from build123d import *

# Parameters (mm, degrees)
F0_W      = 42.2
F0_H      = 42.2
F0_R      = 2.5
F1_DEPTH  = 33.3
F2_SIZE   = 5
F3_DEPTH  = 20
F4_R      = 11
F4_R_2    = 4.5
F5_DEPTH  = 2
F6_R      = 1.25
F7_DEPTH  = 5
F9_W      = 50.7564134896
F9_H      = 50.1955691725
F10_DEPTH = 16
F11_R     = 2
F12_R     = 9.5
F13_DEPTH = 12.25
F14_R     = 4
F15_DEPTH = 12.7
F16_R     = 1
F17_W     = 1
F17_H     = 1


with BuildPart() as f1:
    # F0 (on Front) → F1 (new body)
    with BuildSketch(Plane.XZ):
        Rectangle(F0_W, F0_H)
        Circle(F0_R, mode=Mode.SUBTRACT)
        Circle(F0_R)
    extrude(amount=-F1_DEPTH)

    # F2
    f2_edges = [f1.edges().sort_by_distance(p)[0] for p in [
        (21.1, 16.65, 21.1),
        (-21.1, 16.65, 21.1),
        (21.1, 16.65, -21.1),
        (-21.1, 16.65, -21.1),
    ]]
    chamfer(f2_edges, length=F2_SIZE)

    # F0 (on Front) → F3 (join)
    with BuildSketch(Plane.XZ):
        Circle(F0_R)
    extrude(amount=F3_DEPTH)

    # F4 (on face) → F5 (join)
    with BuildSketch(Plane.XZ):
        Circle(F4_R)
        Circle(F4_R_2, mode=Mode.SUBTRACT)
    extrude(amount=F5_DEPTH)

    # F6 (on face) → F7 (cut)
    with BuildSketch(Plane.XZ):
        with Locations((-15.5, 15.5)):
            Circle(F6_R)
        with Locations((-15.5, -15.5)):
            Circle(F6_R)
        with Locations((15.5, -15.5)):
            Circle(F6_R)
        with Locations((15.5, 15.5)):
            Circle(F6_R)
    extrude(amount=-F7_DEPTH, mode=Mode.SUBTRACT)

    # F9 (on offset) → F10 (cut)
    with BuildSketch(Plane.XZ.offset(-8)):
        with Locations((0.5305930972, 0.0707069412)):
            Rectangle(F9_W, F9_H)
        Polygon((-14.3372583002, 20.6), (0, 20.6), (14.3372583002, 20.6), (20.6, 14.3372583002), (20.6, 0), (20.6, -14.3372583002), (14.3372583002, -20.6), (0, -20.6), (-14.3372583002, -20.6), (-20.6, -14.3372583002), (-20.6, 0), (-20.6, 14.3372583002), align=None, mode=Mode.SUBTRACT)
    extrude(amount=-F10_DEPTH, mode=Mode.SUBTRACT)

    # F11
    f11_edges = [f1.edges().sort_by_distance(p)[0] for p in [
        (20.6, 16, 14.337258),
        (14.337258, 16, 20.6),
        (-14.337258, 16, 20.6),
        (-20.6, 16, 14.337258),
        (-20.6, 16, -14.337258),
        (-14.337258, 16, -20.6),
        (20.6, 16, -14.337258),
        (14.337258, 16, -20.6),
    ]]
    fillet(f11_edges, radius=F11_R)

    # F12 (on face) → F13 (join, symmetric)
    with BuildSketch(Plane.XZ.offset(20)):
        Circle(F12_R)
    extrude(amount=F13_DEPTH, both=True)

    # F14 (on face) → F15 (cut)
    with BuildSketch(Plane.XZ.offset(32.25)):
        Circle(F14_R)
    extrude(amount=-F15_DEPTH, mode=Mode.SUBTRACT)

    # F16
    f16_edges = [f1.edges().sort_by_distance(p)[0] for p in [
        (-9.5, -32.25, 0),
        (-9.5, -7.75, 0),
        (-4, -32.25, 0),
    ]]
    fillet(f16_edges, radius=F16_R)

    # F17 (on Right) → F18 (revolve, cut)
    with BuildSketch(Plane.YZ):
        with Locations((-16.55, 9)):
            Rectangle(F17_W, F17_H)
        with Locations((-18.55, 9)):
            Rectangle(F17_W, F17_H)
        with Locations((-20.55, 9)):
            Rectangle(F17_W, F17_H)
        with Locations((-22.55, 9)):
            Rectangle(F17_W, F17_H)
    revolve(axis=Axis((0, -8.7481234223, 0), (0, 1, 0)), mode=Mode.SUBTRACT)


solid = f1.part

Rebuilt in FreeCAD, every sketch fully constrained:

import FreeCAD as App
import Part
import Sketcher


def edges_at(feature, points):
    """Names of the edges that pass closest to the given points."""
    edges = feature.Shape.Edges
    near = lambda p: min(range(len(edges)), key=lambda i: edges[i].distToShape(Part.Vertex(*p))[0])
    return sorted({f"Edge{near(p) + 1}" for p in points})

doc = App.newDocument("Part")
body = doc.addObject("PartDesign::Body", "Body")

# Sketch on XZ plane
sketch1 = body.newObject("Sketcher::SketchObject", "Sketch")
sketch1.AttachmentSupport = (doc.getObject("XZ_Plane"), [""])
sketch1.MapMode = "FlatFace"
sketch1.addGeometry(Part.LineSegment(App.Vector(-21.1, 21.1, 0), App.Vector(-21.1, -21.1, 0)), False)
sketch1.addGeometry(Part.LineSegment(App.Vector(-21.1, -21.1, 0), App.Vector(21.1, -21.1, 0)), False)
sketch1.addGeometry(Part.LineSegment(App.Vector(21.1, -21.1, 0), App.Vector(21.1, 21.1, 0)), False)
sketch1.addGeometry(Part.LineSegment(App.Vector(21.1, 21.1, 0), App.Vector(-21.1, 21.1, 0)), False)
sketch1.addConstraint(Sketcher.Constraint("Coincident", 0, 2, 1, 1))
sketch1.addConstraint(Sketcher.Constraint("Coincident", 1, 2, 2, 1))
sketch1.addConstraint(Sketcher.Constraint("Coincident", 2, 2, 3, 1))
sketch1.addConstraint(Sketcher.Constraint("Coincident", 3, 2, 0, 1))
sketch1.addConstraint(Sketcher.Constraint("Vertical", 0))
sketch1.addConstraint(Sketcher.Constraint("Horizontal", 1))
sketch1.addConstraint(Sketcher.Constraint("Vertical", 2))
sketch1.addConstraint(Sketcher.Constraint("Horizontal", 3))
sketch1.addConstraint(Sketcher.Constraint("Symmetric", 0, 2, 2, 2, -1, 1))
sketch1.addConstraint(Sketcher.Constraint("Equal", 3, 0))
sketch1.addConstraint(Sketcher.Constraint("DistanceX", 1, 1, 1, 2, 42.2))
pad1 = body.newObject("PartDesign::Pad", "Pad")
pad1.Profile = sketch1
pad1.Length = 33.3
pad1.Reversed = True
doc.recompute()

chamfer = body.newObject("PartDesign::Chamfer", "Chamfer")
chamfer.Base = (pad1, edges_at(pad1, [
    (21.1, 16.65, 21.1),
    (-21.1, 16.65, 21.1),
    (21.1, 16.65, -21.1),
    (-21.1, 16.65, -21.1),
]))
chamfer.Size = 5

# Sketch on XZ plane
sketch2 = body.newObject("Sketcher::SketchObject", "Sketch001")
sketch2.AttachmentSupport = (doc.getObject("XZ_Plane"), [""])
sketch2.MapMode = "FlatFace"
sketch2.addGeometry(Part.Circle(App.Vector(0, 0, 0), App.Vector(0, 0, 1), 2.5), False)
sketch2.addConstraint(Sketcher.Constraint("Coincident", 0, 3, -1, 1))
sketch2.addConstraint(Sketcher.Constraint("Diameter", 0, 5.0))
pad2 = body.newObject("PartDesign::Pad", "Pad001")
pad2.Profile = sketch2
pad2.Length = 20

# Sketch on XZ plane
sketch3 = body.newObject("Sketcher::SketchObject", "Sketch002")
sketch3.AttachmentSupport = (doc.getObject("XZ_Plane"), [""])
sketch3.MapMode = "FlatFace"
sketch3.addGeometry(Part.Circle(App.Vector(0, 0, 0), App.Vector(0, 0, 1), 11), False)
sketch3.addGeometry(Part.Circle(App.Vector(0, 0, 0), App.Vector(0, 0, 1), 4.5), False)
sketch3.addConstraint(Sketcher.Constraint("Coincident", 0, 3, -1, 1))
sketch3.addConstraint(Sketcher.Constraint("Coincident", 1, 3, -1, 1))
sketch3.addConstraint(Sketcher.Constraint("Diameter", 0, 22.0))
sketch3.addConstraint(Sketcher.Constraint("Diameter", 1, 9.0))
pad3 = body.newObject("PartDesign::Pad", "Pad002")
pad3.Profile = sketch3
pad3.Length = 2

# Sketch on XZ plane
sketch4 = body.newObject("Sketcher::SketchObject", "Sketch003")
sketch4.AttachmentSupport = (doc.getObject("XZ_Plane"), [""])
sketch4.MapMode = "FlatFace"
sketch4.addGeometry(Part.Circle(App.Vector(-15.5, 15.5, 0), App.Vector(0, 0, 1), 1.25), False)
sketch4.addGeometry(Part.Circle(App.Vector(-15.5, -15.5, 0), App.Vector(0, 0, 1), 1.25), False)
sketch4.addGeometry(Part.Circle(App.Vector(15.5, -15.5, 0), App.Vector(0, 0, 1), 1.25), False)
sketch4.addGeometry(Part.Circle(App.Vector(15.5, 15.5, 0), App.Vector(0, 0, 1), 1.25), False)
sketch4.addConstraint(Sketcher.Constraint("Equal", 0, 1))
sketch4.addConstraint(Sketcher.Constraint("Equal", 1, 2))
sketch4.addConstraint(Sketcher.Constraint("Equal", 2, 3))
sketch4.addConstraint(Sketcher.Constraint("Symmetric", 0, 3, 2, 3, -1, 1))
sketch4.addConstraint(Sketcher.Constraint("Symmetric", 1, 3, 3, 3, -1, 1))
sketch4.addConstraint(Sketcher.Constraint("Symmetric", 1, 3, 2, 3, -2))
sketch4.addConstraint(Sketcher.Constraint("Diameter", 0, 2.5))
sketch4.addConstraint(Sketcher.Constraint("DistanceY", 1, 3, 0, 3, 31.0))
sketch4.addConstraint(Sketcher.Constraint("DistanceX", 1, 3, 2, 3, 31.0))
pocket1 = body.newObject("PartDesign::Pocket", "Pocket")
pocket1.Profile = sketch4
pocket1.Length = 5

# Sketch on XZ plane
sketch5 = body.newObject("Sketcher::SketchObject", "Sketch004")
sketch5.AttachmentSupport = (doc.getObject("XZ_Plane"), [""])
sketch5.MapMode = "FlatFace"
sketch5.AttachmentOffset = App.Placement(App.Vector(0, 0, -8), App.Rotation())
sketch5.addGeometry(Part.LineSegment(App.Vector(-24.847614, 25.168492, 0), App.Vector(-24.847614, -25.027078, 0)), False)
sketch5.addGeometry(Part.LineSegment(App.Vector(-24.847614, -25.027078, 0), App.Vector(25.9088, -25.027078, 0)), False)
sketch5.addGeometry(Part.LineSegment(App.Vector(25.9088, -25.027078, 0), App.Vector(25.9088, 25.168492, 0)), False)
sketch5.addGeometry(Part.LineSegment(App.Vector(25.9088, 25.168492, 0), App.Vector(-24.847614, 25.168492, 0)), False)
sketch5.addGeometry(Part.LineSegment(App.Vector(-20.6, 14.337258, 0), App.Vector(-14.337258, 20.6, 0)), False)
sketch5.addGeometry(Part.LineSegment(App.Vector(-14.337258, 20.6, 0), App.Vector(14.337258, 20.6, 0)), False)
sketch5.addGeometry(Part.LineSegment(App.Vector(14.337258, 20.6, 0), App.Vector(20.6, 14.337258, 0)), False)
sketch5.addGeometry(Part.LineSegment(App.Vector(20.6, 14.337258, 0), App.Vector(20.6, -14.337258, 0)), False)
sketch5.addGeometry(Part.LineSegment(App.Vector(20.6, -14.337258, 0), App.Vector(14.337258, -20.6, 0)), False)
sketch5.addGeometry(Part.LineSegment(App.Vector(14.337258, -20.6, 0), App.Vector(-14.337258, -20.6, 0)), False)
sketch5.addGeometry(Part.LineSegment(App.Vector(-14.337258, -20.6, 0), App.Vector(-20.6, -14.337258, 0)), False)
sketch5.addGeometry(Part.LineSegment(App.Vector(-20.6, -14.337258, 0), App.Vector(-20.6, 14.337258, 0)), False)
sketch5.addConstraint(Sketcher.Constraint("Coincident", 0, 2, 1, 1))
sketch5.addConstraint(Sketcher.Constraint("Coincident", 1, 2, 2, 1))
sketch5.addConstraint(Sketcher.Constraint("Coincident", 2, 2, 3, 1))
sketch5.addConstraint(Sketcher.Constraint("Coincident", 3, 2, 0, 1))
sketch5.addConstraint(Sketcher.Constraint("Coincident", 4, 2, 5, 1))
sketch5.addConstraint(Sketcher.Constraint("Coincident", 5, 2, 6, 1))
sketch5.addConstraint(Sketcher.Constraint("Coincident", 6, 2, 7, 1))
sketch5.addConstraint(Sketcher.Constraint("Coincident", 7, 2, 8, 1))
sketch5.addConstraint(Sketcher.Constraint("Coincident", 8, 2, 9, 1))
sketch5.addConstraint(Sketcher.Constraint("Coincident", 9, 2, 10, 1))
sketch5.addConstraint(Sketcher.Constraint("Coincident", 10, 2, 11, 1))
sketch5.addConstraint(Sketcher.Constraint("Coincident", 11, 2, 4, 1))
sketch5.addConstraint(Sketcher.Constraint("Vertical", 0))
sketch5.addConstraint(Sketcher.Constraint("Horizontal", 1))
sketch5.addConstraint(Sketcher.Constraint("Vertical", 2))
sketch5.addConstraint(Sketcher.Constraint("Horizontal", 3))
sketch5.addConstraint(Sketcher.Constraint("Horizontal", 5))
sketch5.addConstraint(Sketcher.Constraint("Vertical", 7))
sketch5.addConstraint(Sketcher.Constraint("Horizontal", 9))
sketch5.addConstraint(Sketcher.Constraint("Vertical", 11))
sketch5.addConstraint(Sketcher.Constraint("Symmetric", 4, 2, 8, 2, -1, 1))
sketch5.addConstraint(Sketcher.Constraint("Symmetric", 6, 2, 10, 2, -1, 1))
sketch5.addConstraint(Sketcher.Constraint("Perpendicular", 4, 6))
sketch5.addConstraint(Sketcher.Constraint("Perpendicular", 6, 8))
sketch5.addConstraint(Sketcher.Constraint("Perpendicular", 8, 10))
sketch5.addConstraint(Sketcher.Constraint("Horizontal", 7, 2, 10, 2))
sketch5.addConstraint(Sketcher.Constraint("Vertical", 5, 2, 8, 2))
sketch5.addConstraint(Sketcher.Constraint("Equal", 9, 7))
sketch5.addConstraint(Sketcher.Constraint("DistanceY", -1, 1, 4, 2, 20.6))
sketch5.addConstraint(Sketcher.Constraint("DistanceY", 0, 2, 0, 1, 50.195569))
sketch5.addConstraint(Sketcher.Constraint("DistanceX", -1, 1, 1, 2, 25.9088))
sketch5.addConstraint(Sketcher.Constraint("DistanceX", 1, 1, 1, 2, 50.756413))
sketch5.addConstraint(Sketcher.Constraint("DistanceX", 5, 1, 5, 2, 28.674517))
sketch5.addConstraint(Sketcher.Constraint("DistanceY", -1, 1, 2, 2, 25.168492))
pocket2 = body.newObject("PartDesign::Pocket", "Pocket001")
pocket2.Profile = sketch5
pocket2.Length = 16
doc.recompute()

fillet = body.newObject("PartDesign::Fillet", "Fillet")
fillet.Base = (pocket2, edges_at(pocket2, [
    (20.6, 16, 14.337),
    (14.337, 16, 20.6),
    (-14.337, 16, 20.6),
    (-20.6, 16, 14.337),
    (-20.6, 16, -14.337),
    (-14.337, 16, -20.6),
    (20.6, 16, -14.337),
    (14.337, 16, -20.6),
]))
fillet.Radius = 2

# Sketch on XZ plane
sketch6 = body.newObject("Sketcher::SketchObject", "Sketch005")
sketch6.AttachmentSupport = (doc.getObject("XZ_Plane"), [""])
sketch6.MapMode = "FlatFace"
sketch6.AttachmentOffset = App.Placement(App.Vector(0, 0, 20), App.Rotation())
sketch6.addGeometry(Part.Circle(App.Vector(0, 0, 0), App.Vector(0, 0, 1), 9.5), False)
sketch6.addConstraint(Sketcher.Constraint("Coincident", 0, 3, -1, 1))
sketch6.addConstraint(Sketcher.Constraint("Diameter", 0, 19.0))
pad4 = body.newObject("PartDesign::Pad", "Pad003")
pad4.Profile = sketch6
pad4.Length = 24.5
pad4.Midplane = True

# Sketch on XZ plane
sketch7 = body.newObject("Sketcher::SketchObject", "Sketch006")
sketch7.AttachmentSupport = (doc.getObject("XZ_Plane"), [""])
sketch7.MapMode = "FlatFace"
sketch7.AttachmentOffset = App.Placement(App.Vector(0, 0, 32.25), App.Rotation())
sketch7.addGeometry(Part.Circle(App.Vector(0, 0, 0), App.Vector(0, 0, 1), 4), False)
sketch7.addConstraint(Sketcher.Constraint("Coincident", 0, 3, -1, 1))
sketch7.addConstraint(Sketcher.Constraint("Diameter", 0, 8.0))
pocket3 = body.newObject("PartDesign::Pocket", "Pocket002")
pocket3.Profile = sketch7
pocket3.Length = 12.7
doc.recompute()

fillet2 = body.newObject("PartDesign::Fillet", "Fillet001")
fillet2.Base = (pocket3, edges_at(pocket3, [(-9.5, -32.25, 0), (-9.5, -7.75, 0), (-4, -32.25, 0)]))
fillet2.Radius = 1

# Sketch on YZ plane
sketch8 = body.newObject("Sketcher::SketchObject", "Sketch007")
sketch8.AttachmentSupport = (doc.getObject("YZ_Plane"), [""])
sketch8.MapMode = "FlatFace"
sketch8.addGeometry(Part.LineSegment(App.Vector(-17.05, 9.5, 0), App.Vector(-17.05, 8.5, 0)), False)
sketch8.addGeometry(Part.LineSegment(App.Vector(-17.05, 8.5, 0), App.Vector(-16.05, 8.5, 0)), False)
sketch8.addGeometry(Part.LineSegment(App.Vector(-16.05, 8.5, 0), App.Vector(-16.05, 9.5, 0)), False)
sketch8.addGeometry(Part.LineSegment(App.Vector(-16.05, 9.5, 0), App.Vector(-17.05, 9.5, 0)), False)
sketch8.addGeometry(Part.LineSegment(App.Vector(-19.05, 9.5, 0), App.Vector(-19.05, 8.5, 0)), False)
sketch8.addGeometry(Part.LineSegment(App.Vector(-19.05, 8.5, 0), App.Vector(-18.05, 8.5, 0)), False)
sketch8.addGeometry(Part.LineSegment(App.Vector(-18.05, 8.5, 0), App.Vector(-18.05, 9.5, 0)), False)
sketch8.addGeometry(Part.LineSegment(App.Vector(-18.05, 9.5, 0), App.Vector(-19.05, 9.5, 0)), False)
sketch8.addGeometry(Part.LineSegment(App.Vector(-21.05, 9.5, 0), App.Vector(-21.05, 8.5, 0)), False)
sketch8.addGeometry(Part.LineSegment(App.Vector(-21.05, 8.5, 0), App.Vector(-20.05, 8.5, 0)), False)
sketch8.addGeometry(Part.LineSegment(App.Vector(-20.05, 8.5, 0), App.Vector(-20.05, 9.5, 0)), False)
sketch8.addGeometry(Part.LineSegment(App.Vector(-20.05, 9.5, 0), App.Vector(-21.05, 9.5, 0)), False)
sketch8.addGeometry(Part.LineSegment(App.Vector(-23.05, 9.5, 0), App.Vector(-23.05, 8.5, 0)), False)
sketch8.addGeometry(Part.LineSegment(App.Vector(-23.05, 8.5, 0), App.Vector(-22.05, 8.5, 0)), False)
sketch8.addGeometry(Part.LineSegment(App.Vector(-22.05, 8.5, 0), App.Vector(-22.05, 9.5, 0)), False)
sketch8.addGeometry(Part.LineSegment(App.Vector(-22.05, 9.5, 0), App.Vector(-23.05, 9.5, 0)), False)
sketch8.addConstraint(Sketcher.Constraint("Coincident", 0, 2, 1, 1))
sketch8.addConstraint(Sketcher.Constraint("Coincident", 1, 2, 2, 1))
sketch8.addConstraint(Sketcher.Constraint("Coincident", 2, 2, 3, 1))
sketch8.addConstraint(Sketcher.Constraint("Coincident", 3, 2, 0, 1))
sketch8.addConstraint(Sketcher.Constraint("Coincident", 4, 2, 5, 1))
sketch8.addConstraint(Sketcher.Constraint("Coincident", 5, 2, 6, 1))
sketch8.addConstraint(Sketcher.Constraint("Coincident", 6, 2, 7, 1))
sketch8.addConstraint(Sketcher.Constraint("Coincident", 7, 2, 4, 1))
sketch8.addConstraint(Sketcher.Constraint("Coincident", 8, 2, 9, 1))
sketch8.addConstraint(Sketcher.Constraint("Coincident", 9, 2, 10, 1))
sketch8.addConstraint(Sketcher.Constraint("Coincident", 10, 2, 11, 1))
sketch8.addConstraint(Sketcher.Constraint("Coincident", 11, 2, 8, 1))
sketch8.addConstraint(Sketcher.Constraint("Coincident", 12, 2, 13, 1))
sketch8.addConstraint(Sketcher.Constraint("Coincident", 13, 2, 14, 1))
sketch8.addConstraint(Sketcher.Constraint("Coincident", 14, 2, 15, 1))
sketch8.addConstraint(Sketcher.Constraint("Coincident", 15, 2, 12, 1))
sketch8.addConstraint(Sketcher.Constraint("Vertical", 0))
sketch8.addConstraint(Sketcher.Constraint("Horizontal", 1))
sketch8.addConstraint(Sketcher.Constraint("Vertical", 2))
sketch8.addConstraint(Sketcher.Constraint("Horizontal", 3))
sketch8.addConstraint(Sketcher.Constraint("Vertical", 4))
sketch8.addConstraint(Sketcher.Constraint("Horizontal", 5))
sketch8.addConstraint(Sketcher.Constraint("Vertical", 6))
sketch8.addConstraint(Sketcher.Constraint("Horizontal", 7))
sketch8.addConstraint(Sketcher.Constraint("Vertical", 8))
sketch8.addConstraint(Sketcher.Constraint("Horizontal", 9))
sketch8.addConstraint(Sketcher.Constraint("Vertical", 10))
sketch8.addConstraint(Sketcher.Constraint("Horizontal", 11))
sketch8.addConstraint(Sketcher.Constraint("Vertical", 12))
sketch8.addConstraint(Sketcher.Constraint("Horizontal", 13))
sketch8.addConstraint(Sketcher.Constraint("Vertical", 14))
sketch8.addConstraint(Sketcher.Constraint("Horizontal", 15))
sketch8.addConstraint(Sketcher.Constraint("Horizontal", 1, 2, 4, 2))
sketch8.addConstraint(Sketcher.Constraint("Horizontal", 3, 2, 6, 2))
sketch8.addConstraint(Sketcher.Constraint("Horizontal", 5, 2, 8, 2))
sketch8.addConstraint(Sketcher.Constraint("Horizontal", 7, 2, 10, 2))
sketch8.addConstraint(Sketcher.Constraint("Horizontal", 9, 2, 12, 2))
sketch8.addConstraint(Sketcher.Constraint("Horizontal", 11, 2, 14, 2))
sketch8.addConstraint(Sketcher.Constraint("Equal", 3, 5))
sketch8.addConstraint(Sketcher.Constraint("Equal", 7, 9))
sketch8.addConstraint(Sketcher.Constraint("Equal", 11, 13))
sketch8.addConstraint(Sketcher.Constraint("Equal", 15, 0))
sketch8.addConstraint(Sketcher.Constraint("DistanceX", 1, 1, 1, 2, 1.0))
sketch8.addConstraint(Sketcher.Constraint("DistanceX", 4, 2, 0, 2, 2.0))
sketch8.addConstraint(Sketcher.Constraint("DistanceX", 8, 2, 4, 2, 2.0))
sketch8.addConstraint(Sketcher.Constraint("DistanceX", 12, 2, 8, 2, 2.0))
sketch8.addConstraint(Sketcher.Constraint("DistanceY", -1, 1, 0, 2, 8.5))
sketch8.addConstraint(Sketcher.Constraint("DistanceX", 0, 2, -1, 1, 17.05))
groove = body.newObject("PartDesign::Groove", "Groove")
groove.Profile = sketch8
groove.ReferenceAxis = (sketch8, ["H_Axis"])
groove.Angle = 360

doc.recompute()
